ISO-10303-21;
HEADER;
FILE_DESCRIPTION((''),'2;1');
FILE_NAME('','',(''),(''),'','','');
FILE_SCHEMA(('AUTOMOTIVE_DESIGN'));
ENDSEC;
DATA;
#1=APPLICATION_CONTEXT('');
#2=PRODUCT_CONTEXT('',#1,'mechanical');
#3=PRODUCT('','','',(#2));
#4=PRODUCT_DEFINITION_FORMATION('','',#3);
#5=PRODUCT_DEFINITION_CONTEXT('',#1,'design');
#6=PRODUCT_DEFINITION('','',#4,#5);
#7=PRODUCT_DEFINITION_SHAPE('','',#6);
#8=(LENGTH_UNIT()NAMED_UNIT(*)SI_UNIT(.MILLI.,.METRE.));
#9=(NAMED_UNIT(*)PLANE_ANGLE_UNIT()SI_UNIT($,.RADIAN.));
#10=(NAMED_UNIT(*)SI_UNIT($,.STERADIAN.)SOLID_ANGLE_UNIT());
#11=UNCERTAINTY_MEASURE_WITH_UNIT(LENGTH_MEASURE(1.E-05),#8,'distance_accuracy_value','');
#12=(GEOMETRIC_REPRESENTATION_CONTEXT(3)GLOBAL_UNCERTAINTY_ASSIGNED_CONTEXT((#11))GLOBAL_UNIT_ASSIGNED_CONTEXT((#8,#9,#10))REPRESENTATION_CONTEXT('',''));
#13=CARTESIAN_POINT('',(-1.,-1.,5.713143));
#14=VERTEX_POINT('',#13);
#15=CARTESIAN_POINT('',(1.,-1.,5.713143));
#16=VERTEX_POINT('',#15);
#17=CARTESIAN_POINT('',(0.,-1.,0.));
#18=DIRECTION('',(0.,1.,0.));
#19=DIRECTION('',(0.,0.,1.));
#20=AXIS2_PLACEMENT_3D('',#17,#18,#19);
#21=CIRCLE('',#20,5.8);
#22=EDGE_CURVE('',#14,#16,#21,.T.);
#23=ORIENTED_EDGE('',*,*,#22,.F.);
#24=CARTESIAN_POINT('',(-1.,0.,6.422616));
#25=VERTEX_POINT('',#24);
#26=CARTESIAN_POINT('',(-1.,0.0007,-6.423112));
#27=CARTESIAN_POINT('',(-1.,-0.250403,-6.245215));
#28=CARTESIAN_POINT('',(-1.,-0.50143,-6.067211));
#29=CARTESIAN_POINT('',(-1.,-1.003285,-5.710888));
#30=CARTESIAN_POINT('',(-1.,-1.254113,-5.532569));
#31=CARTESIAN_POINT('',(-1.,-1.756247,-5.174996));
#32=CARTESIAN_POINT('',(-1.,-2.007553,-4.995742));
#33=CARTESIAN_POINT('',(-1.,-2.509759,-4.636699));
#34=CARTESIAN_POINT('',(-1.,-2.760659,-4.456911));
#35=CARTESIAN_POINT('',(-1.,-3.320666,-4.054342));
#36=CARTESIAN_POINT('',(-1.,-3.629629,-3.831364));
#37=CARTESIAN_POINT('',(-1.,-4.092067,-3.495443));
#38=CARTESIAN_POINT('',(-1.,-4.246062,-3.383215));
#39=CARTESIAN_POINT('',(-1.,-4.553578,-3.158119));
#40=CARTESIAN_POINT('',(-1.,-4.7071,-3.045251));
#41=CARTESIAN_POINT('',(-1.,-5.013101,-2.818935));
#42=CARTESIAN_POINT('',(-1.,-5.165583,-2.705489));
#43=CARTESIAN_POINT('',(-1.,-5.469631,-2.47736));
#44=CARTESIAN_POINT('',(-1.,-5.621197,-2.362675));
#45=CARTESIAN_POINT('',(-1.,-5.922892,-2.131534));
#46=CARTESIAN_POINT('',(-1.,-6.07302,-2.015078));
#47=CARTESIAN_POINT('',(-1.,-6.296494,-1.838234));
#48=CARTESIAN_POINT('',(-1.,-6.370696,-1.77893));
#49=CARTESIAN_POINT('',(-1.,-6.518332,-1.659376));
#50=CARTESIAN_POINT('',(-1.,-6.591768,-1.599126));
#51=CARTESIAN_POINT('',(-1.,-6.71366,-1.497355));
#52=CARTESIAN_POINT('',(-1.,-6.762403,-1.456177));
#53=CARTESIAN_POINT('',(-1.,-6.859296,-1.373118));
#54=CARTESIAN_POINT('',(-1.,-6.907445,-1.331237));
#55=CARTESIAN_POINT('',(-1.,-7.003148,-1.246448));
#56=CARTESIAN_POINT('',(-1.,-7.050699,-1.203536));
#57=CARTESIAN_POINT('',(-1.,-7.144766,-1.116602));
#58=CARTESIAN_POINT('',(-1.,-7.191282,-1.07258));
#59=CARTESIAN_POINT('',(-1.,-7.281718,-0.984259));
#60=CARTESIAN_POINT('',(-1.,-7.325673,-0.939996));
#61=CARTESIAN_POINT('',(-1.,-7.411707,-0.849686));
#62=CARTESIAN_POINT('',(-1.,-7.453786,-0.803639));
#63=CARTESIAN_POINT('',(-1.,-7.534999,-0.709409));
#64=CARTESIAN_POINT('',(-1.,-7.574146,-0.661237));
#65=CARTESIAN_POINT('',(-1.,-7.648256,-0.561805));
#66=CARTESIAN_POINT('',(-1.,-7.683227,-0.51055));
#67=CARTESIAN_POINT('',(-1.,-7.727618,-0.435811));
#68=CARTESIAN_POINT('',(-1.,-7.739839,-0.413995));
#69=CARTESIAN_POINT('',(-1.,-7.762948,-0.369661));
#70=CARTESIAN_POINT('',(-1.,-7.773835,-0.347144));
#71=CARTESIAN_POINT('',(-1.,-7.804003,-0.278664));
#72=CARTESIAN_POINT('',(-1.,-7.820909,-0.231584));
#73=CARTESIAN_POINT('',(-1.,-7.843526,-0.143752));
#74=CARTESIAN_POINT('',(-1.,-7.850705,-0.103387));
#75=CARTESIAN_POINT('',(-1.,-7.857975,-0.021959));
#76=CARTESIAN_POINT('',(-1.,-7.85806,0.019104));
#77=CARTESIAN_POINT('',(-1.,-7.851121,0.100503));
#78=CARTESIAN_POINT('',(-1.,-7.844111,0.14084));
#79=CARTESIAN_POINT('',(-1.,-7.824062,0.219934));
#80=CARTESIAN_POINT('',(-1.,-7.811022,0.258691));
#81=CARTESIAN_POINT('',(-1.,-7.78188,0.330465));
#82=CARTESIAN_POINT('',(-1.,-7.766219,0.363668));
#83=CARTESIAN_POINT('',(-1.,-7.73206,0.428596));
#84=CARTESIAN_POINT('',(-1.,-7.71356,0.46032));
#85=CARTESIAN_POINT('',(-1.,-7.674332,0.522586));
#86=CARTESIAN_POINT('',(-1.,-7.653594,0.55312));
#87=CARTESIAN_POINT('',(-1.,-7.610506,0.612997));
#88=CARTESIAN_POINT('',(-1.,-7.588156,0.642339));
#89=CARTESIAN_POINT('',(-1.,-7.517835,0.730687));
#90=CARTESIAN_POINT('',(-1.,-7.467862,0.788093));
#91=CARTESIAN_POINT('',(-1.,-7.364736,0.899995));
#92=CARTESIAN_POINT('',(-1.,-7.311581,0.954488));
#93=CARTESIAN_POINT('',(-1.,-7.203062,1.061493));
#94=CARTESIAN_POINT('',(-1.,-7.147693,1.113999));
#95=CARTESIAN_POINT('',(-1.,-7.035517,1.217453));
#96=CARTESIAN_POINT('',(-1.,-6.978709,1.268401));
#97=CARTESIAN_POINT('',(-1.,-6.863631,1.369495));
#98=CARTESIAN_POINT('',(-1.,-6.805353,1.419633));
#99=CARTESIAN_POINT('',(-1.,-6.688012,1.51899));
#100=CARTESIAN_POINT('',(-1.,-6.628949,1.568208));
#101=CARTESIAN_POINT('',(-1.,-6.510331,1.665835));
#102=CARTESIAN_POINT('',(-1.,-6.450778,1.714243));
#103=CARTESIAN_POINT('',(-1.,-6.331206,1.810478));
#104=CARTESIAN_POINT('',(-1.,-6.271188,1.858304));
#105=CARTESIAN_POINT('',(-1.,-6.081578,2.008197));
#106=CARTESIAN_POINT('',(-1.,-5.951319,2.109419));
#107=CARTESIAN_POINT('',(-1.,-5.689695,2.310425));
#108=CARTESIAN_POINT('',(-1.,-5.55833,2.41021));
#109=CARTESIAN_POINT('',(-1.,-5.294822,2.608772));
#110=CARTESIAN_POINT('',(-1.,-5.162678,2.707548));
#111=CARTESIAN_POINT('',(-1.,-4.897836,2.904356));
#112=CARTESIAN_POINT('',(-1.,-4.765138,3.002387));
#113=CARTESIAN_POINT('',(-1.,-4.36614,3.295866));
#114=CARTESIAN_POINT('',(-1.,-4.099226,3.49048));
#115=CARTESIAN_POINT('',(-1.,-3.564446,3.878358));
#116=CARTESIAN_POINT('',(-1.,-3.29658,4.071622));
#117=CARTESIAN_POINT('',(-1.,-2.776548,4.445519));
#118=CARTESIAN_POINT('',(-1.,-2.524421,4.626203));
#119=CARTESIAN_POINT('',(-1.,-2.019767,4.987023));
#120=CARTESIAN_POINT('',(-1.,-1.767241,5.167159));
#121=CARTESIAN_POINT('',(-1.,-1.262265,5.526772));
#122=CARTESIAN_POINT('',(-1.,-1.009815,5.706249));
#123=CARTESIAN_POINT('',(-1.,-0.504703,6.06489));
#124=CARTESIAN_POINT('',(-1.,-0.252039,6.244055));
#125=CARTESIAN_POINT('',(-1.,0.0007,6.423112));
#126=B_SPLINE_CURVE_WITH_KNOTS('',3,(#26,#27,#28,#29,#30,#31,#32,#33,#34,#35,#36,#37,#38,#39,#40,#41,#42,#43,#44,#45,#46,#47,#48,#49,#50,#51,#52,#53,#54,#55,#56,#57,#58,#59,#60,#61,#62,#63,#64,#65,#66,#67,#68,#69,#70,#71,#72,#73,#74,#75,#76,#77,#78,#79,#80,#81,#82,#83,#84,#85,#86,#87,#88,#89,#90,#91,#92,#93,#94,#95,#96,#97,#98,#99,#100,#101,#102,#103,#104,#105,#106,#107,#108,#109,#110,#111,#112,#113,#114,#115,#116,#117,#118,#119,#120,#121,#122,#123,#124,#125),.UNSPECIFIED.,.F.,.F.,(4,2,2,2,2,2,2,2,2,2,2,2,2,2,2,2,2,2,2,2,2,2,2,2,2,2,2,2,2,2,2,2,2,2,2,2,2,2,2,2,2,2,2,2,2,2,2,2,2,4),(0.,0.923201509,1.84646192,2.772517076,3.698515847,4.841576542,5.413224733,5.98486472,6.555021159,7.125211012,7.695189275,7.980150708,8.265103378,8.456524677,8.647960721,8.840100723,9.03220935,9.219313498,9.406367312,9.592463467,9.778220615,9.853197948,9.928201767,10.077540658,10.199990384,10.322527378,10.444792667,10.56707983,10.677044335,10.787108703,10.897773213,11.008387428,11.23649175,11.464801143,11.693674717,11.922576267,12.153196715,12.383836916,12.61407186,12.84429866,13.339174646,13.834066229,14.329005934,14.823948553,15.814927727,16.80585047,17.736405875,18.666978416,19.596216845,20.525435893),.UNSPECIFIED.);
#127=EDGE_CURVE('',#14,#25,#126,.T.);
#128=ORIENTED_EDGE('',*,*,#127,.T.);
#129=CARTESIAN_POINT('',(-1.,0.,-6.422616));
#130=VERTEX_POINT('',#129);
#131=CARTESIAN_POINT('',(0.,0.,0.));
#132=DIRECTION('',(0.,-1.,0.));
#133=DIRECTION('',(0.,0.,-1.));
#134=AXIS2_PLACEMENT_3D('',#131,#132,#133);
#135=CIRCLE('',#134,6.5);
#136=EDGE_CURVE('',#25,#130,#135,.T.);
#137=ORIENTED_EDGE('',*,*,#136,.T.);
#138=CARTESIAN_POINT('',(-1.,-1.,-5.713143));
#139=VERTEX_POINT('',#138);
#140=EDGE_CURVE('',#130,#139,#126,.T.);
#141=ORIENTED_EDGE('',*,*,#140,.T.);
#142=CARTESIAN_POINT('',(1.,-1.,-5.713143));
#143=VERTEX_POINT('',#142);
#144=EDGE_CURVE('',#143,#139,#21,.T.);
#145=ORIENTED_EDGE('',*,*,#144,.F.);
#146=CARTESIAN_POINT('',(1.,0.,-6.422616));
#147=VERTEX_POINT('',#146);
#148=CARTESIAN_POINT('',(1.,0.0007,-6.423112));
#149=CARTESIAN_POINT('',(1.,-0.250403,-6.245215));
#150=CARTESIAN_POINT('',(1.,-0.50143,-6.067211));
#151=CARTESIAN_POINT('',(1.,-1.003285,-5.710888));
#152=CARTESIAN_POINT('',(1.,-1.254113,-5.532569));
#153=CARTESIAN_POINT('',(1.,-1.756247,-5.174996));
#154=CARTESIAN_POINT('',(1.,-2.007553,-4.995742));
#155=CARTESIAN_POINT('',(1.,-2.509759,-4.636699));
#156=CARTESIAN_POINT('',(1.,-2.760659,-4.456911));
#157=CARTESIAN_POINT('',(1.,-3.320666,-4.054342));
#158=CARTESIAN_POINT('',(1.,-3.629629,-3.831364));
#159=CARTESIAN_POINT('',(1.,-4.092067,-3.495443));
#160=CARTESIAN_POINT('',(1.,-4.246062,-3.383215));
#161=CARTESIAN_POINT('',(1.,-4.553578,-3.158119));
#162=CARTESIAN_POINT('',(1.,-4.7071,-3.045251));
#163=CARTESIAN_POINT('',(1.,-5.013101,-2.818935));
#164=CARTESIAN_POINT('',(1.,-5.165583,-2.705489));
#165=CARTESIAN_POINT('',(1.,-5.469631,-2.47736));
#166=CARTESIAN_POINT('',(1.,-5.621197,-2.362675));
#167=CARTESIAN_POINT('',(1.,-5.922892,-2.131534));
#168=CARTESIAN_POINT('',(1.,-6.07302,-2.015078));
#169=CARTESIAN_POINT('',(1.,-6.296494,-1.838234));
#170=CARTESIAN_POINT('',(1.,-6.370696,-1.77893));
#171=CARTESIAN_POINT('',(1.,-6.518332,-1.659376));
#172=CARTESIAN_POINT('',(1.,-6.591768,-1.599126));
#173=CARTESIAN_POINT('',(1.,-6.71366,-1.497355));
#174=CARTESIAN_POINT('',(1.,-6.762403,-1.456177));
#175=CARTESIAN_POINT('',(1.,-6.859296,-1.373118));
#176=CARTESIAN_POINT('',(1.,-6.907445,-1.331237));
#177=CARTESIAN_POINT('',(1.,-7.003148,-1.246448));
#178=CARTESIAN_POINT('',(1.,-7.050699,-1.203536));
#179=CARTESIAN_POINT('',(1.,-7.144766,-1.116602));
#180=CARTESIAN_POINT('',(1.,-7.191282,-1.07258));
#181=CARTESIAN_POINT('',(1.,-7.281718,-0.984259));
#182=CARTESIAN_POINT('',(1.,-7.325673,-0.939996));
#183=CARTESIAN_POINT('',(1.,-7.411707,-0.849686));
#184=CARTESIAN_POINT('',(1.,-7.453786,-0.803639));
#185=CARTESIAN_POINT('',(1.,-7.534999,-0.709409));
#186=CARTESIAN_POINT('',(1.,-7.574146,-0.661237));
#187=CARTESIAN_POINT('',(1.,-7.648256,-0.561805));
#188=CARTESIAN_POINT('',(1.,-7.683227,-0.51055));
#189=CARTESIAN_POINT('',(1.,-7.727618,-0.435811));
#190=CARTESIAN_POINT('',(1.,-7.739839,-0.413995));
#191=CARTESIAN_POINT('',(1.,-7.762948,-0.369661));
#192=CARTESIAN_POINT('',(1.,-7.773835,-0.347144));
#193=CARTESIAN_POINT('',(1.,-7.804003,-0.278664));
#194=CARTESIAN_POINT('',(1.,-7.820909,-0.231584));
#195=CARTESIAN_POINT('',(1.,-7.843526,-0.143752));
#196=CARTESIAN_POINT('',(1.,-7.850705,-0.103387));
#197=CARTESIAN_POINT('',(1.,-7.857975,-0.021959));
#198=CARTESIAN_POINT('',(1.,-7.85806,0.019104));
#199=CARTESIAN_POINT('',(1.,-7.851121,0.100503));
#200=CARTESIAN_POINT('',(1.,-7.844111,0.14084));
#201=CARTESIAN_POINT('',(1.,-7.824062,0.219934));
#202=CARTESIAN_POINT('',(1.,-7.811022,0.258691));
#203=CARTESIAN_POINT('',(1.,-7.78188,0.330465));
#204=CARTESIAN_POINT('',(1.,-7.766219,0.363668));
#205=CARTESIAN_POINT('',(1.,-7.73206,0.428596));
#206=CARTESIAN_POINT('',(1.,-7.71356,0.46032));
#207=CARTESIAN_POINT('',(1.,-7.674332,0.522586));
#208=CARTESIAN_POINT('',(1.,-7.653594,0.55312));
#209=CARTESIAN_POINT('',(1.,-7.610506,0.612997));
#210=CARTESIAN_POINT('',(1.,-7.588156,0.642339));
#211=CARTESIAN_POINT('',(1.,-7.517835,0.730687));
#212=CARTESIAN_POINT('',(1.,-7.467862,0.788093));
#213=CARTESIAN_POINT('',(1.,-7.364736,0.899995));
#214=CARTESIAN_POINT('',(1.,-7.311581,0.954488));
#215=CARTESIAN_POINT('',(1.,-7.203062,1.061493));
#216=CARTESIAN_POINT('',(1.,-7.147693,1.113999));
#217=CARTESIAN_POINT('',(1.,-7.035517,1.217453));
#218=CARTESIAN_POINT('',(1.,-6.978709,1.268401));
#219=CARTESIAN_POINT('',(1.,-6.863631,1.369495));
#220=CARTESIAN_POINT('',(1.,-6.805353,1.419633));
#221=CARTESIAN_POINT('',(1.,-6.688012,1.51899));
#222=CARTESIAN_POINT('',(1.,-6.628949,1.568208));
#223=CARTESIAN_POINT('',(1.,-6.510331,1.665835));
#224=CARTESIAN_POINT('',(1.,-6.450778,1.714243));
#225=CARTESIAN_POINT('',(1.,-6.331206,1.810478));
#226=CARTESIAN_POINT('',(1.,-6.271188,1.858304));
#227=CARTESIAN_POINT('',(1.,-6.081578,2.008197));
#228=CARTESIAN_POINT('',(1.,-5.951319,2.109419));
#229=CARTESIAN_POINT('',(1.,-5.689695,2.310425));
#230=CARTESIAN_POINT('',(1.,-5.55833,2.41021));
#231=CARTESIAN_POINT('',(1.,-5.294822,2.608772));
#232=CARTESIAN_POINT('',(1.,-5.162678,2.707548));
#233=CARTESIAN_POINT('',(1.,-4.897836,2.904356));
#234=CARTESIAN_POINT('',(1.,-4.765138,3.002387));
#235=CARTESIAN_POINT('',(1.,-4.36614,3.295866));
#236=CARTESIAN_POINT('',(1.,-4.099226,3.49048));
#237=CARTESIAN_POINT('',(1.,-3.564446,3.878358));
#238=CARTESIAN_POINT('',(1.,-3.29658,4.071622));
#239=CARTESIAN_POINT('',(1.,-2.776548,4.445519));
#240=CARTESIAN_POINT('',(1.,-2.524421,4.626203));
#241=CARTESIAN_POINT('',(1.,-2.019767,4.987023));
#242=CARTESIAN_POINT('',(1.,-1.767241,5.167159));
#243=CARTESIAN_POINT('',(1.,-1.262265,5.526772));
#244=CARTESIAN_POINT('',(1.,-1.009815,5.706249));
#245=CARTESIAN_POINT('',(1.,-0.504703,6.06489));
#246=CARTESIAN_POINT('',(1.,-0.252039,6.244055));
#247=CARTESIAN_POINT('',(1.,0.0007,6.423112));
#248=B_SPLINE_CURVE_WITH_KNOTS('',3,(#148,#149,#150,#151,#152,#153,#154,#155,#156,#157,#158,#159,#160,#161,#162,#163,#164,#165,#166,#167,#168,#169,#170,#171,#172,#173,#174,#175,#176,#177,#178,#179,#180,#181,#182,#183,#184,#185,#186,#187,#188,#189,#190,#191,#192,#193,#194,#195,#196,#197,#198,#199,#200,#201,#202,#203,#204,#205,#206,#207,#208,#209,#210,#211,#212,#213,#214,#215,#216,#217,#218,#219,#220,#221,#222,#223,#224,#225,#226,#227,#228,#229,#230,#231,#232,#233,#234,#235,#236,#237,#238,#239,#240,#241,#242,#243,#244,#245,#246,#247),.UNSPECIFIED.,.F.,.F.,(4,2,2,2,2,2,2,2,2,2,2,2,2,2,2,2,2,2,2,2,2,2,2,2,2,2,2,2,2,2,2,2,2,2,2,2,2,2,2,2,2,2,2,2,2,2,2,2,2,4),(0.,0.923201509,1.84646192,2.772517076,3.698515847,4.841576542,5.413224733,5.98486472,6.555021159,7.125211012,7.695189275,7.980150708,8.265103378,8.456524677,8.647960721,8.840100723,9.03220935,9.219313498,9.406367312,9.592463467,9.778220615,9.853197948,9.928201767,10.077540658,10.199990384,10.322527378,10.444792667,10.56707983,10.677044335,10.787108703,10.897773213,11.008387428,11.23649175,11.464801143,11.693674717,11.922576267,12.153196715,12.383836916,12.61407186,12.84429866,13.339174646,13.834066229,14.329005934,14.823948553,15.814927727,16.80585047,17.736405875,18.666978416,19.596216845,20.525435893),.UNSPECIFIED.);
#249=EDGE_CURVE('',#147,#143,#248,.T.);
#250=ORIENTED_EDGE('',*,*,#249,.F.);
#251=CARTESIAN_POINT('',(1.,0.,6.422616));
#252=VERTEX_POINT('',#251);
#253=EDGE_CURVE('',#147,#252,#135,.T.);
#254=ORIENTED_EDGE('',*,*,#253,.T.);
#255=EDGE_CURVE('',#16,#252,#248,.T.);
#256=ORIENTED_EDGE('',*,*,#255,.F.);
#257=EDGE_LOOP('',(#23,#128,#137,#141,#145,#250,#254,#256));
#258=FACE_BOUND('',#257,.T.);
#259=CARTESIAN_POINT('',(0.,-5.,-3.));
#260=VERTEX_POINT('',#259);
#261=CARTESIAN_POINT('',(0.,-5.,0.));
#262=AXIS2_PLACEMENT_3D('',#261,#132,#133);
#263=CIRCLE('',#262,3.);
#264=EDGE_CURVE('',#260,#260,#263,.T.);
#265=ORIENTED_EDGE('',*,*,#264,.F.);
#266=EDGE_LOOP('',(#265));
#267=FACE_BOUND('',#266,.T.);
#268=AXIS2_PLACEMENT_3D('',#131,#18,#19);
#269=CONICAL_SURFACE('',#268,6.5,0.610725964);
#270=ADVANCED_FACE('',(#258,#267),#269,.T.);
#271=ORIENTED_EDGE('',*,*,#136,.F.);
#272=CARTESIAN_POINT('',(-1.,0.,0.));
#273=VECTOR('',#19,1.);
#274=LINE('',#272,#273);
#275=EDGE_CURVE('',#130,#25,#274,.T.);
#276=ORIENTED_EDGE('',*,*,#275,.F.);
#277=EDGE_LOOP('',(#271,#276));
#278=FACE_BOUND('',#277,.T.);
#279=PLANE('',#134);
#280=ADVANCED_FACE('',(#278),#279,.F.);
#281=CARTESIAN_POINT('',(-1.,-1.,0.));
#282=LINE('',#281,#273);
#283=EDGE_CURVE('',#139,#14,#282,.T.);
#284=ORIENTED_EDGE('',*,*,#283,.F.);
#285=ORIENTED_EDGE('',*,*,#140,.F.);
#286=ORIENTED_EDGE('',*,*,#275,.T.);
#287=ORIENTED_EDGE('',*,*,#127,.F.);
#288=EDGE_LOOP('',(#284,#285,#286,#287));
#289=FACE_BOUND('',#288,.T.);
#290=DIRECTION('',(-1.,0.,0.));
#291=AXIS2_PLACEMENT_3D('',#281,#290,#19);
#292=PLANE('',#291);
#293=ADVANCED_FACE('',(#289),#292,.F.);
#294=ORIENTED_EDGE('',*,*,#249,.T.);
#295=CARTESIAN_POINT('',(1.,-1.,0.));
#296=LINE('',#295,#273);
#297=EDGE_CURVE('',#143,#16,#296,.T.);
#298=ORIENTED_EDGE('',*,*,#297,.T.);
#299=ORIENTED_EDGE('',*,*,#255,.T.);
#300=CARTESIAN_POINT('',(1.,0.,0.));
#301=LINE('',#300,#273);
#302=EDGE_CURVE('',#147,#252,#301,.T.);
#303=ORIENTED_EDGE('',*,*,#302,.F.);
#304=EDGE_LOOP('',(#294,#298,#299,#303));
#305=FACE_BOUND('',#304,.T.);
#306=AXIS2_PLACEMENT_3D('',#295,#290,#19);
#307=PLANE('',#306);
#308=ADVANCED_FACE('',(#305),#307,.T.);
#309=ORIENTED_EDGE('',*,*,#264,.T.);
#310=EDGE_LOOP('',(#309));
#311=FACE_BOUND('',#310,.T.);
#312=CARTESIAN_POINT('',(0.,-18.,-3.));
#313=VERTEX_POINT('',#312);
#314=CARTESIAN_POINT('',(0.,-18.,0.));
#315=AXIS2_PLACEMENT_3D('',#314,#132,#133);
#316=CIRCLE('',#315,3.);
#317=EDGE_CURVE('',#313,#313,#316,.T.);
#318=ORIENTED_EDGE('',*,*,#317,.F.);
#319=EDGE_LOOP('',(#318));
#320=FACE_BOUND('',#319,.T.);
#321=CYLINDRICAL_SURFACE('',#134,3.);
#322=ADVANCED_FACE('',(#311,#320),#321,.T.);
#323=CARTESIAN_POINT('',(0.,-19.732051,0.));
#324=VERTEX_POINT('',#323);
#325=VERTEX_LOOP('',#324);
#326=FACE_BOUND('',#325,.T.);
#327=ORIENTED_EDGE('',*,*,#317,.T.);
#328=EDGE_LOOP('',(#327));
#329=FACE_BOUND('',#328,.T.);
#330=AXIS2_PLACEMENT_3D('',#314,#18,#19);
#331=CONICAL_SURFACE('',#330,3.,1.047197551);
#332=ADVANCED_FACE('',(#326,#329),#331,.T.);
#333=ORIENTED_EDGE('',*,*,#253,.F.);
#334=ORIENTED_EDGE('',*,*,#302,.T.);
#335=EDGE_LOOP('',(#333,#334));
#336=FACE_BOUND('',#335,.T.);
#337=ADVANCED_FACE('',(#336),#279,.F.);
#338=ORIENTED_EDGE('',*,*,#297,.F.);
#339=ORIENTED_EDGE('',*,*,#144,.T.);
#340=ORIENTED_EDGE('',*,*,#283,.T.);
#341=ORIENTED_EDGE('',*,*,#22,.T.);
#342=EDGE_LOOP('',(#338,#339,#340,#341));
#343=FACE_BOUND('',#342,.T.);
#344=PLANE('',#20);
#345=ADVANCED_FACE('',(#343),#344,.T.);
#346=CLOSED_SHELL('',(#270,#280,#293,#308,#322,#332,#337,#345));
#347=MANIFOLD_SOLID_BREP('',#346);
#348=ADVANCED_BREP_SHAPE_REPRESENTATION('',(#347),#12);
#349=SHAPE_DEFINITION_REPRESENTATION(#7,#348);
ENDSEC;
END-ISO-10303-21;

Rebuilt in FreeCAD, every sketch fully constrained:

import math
import FreeCAD as App
import Part
import Sketcher
Q = App.Units.Quantity

doc = App.newDocument("Part")
body = doc.addObject("PartDesign::Body", "Body")

# Sketch on XY plane
sketch1 = body.newObject("Sketcher::SketchObject", "Sketch")
sketch1.AttachmentSupport = (doc.getObject("XY_Plane"), [""])
sketch1.MapMode = "FlatFace"
sketch1.addGeometry(Part.LineSegment(App.Vector(3, -5, 0), App.Vector(6.5, 0, 0)), False)
sketch1.addGeometry(Part.LineSegment(App.Vector(6.5, 0, 0), App.Vector(0, 0, 0)), False)
sketch1.addGeometry(Part.LineSegment(App.Vector(0, 0, 0), App.Vector(0, -19.7, 0)), False)
sketch1.addGeometry(Part.LineSegment(App.Vector(0, -19.7, 0), App.Vector(3, -18, 0)), False)
sketch1.addGeometry(Part.LineSegment(App.Vector(3, -18, 0), App.Vector(3, -5, 0)), False)
sketch1.addConstraint(Sketcher.Constraint("Coincident", 0, 2, 1, 1))
sketch1.addConstraint(Sketcher.Constraint("Coincident", 1, 2, 2, 1))
sketch1.addConstraint(Sketcher.Constraint("Coincident", 2, 2, 3, 1))
sketch1.addConstraint(Sketcher.Constraint("Coincident", 3, 2, 4, 1))
sketch1.addConstraint(Sketcher.Constraint("Coincident", 4, 2, 0, 1))
sketch1.addConstraint(Sketcher.Constraint("Horizontal", 1))
sketch1.addConstraint(Sketcher.Constraint("Vertical", 2))
sketch1.addConstraint(Sketcher.Constraint("Vertical", 4))
sketch1.addConstraint(Sketcher.Constraint("Coincident", 1, 2, -1, 1))
sketch1.addConstraint(Sketcher.Constraint("DistanceY", 4, 1, 4, 2, 13.0))
sketch1.addConstraint(Sketcher.Constraint("Angle", 3, Q("30 deg")))
sketch1.addConstraint(Sketcher.Constraint("DistanceX", 1, 2, 1, 1, 6.5))
sketch1.addConstraint(Sketcher.Constraint("DistanceX", -1, 1, 3, 2, 3.0))
sketch1.addConstraint(Sketcher.Constraint("DistanceY", 3, 2, -1, 1, 18.0))
revolution = body.newObject("PartDesign::Revolution", "Revolution")
revolution.Profile = sketch1
revolution.ReferenceAxis = (sketch1, ["V_Axis"])
revolution.Angle = 360

# Sketch on XZ plane
sketch2 = body.newObject("Sketcher::SketchObject", "Sketch001")
sketch2.AttachmentSupport = (doc.getObject("XZ_Plane"), [""])
sketch2.MapMode = "FlatFace"
sketch2.addGeometry(Part.ArcOfCircle(Part.Circle(App.Vector(0, 0, 0), App.Vector(0, 0, 1), 6.5), math.radians(-98.85), math.radians(-90)), False)
sketch2.addGeometry(Part.LineSegment(App.Vector(-1, -6.4, 0), App.Vector(-1, 6.4, 0)), False)
sketch2.addGeometry(Part.ArcOfCircle(Part.Circle(App.Vector(0, 0, 0), App.Vector(0, 0, 1), 6.5), math.radians(90), math.radians(98.85)), False)
sketch2.addGeometry(Part.ArcOfCircle(Part.Circle(App.Vector(0, 0, 0), App.Vector(0, 0, 1), 6.5), math.radians(81.15), math.radians(90)), False)
sketch2.addGeometry(Part.LineSegment(App.Vector(1, 6.4, 0), App.Vector(1, -6.4, 0)), False)
sketch2.addGeometry(Part.ArcOfCircle(Part.Circle(App.Vector(0, 0, 0), App.Vector(0, 0, 1), 6.5), math.radians(-90), math.radians(-81.15)), False)
sketch2.addConstraint(Sketcher.Constraint("Coincident", 0, 1, 1, 1))
sketch2.addConstraint(Sketcher.Constraint("Coincident", 1, 2, 2, 2))
sketch2.addConstraint(Sketcher.Constraint("Tangent", 2, 1, 3, 2))
sketch2.addConstraint(Sketcher.Constraint("Coincident", 3, 1, 4, 1))
sketch2.addConstraint(Sketcher.Constraint("Coincident", 4, 2, 5, 2))
sketch2.addConstraint(Sketcher.Constraint("Tangent", 5, 1, 0, 2))
sketch2.addConstraint(Sketcher.Constraint("Vertical", 1))
sketch2.addConstraint(Sketcher.Constraint("Vertical", 4))
sketch2.addConstraint(Sketcher.Constraint("Coincident", 0, 3, -1, 1))
sketch2.addConstraint(Sketcher.Constraint("Coincident", 2, 3, -1, 1))
sketch2.addConstraint(Sketcher.Constraint("Equal", 0, 2))
sketch2.addConstraint(Sketcher.Constraint("Equal", 2, 3))
sketch2.addConstraint(Sketcher.Constraint("Equal", 3, 5))
sketch2.addConstraint(Sketcher.Constraint("PointOnObject", 2, 1, -2))
sketch2.addConstraint(Sketcher.Constraint("PointOnObject", 5, 1, -2))
sketch2.addConstraint(Sketcher.Constraint("Horizontal", 1, 2, 3, 1))
sketch2.addConstraint(Sketcher.Constraint("Radius", 0, 6.5))
sketch2.addConstraint(Sketcher.Constraint("DistanceX", 0, 1, -1, 1, 1.0))
pocket1 = body.newObject("PartDesign::Pocket", "Pocket")
pocket1.Profile = sketch2
pocket1.Length = 1
pocket1.Reversed = True

doc.recompute()
